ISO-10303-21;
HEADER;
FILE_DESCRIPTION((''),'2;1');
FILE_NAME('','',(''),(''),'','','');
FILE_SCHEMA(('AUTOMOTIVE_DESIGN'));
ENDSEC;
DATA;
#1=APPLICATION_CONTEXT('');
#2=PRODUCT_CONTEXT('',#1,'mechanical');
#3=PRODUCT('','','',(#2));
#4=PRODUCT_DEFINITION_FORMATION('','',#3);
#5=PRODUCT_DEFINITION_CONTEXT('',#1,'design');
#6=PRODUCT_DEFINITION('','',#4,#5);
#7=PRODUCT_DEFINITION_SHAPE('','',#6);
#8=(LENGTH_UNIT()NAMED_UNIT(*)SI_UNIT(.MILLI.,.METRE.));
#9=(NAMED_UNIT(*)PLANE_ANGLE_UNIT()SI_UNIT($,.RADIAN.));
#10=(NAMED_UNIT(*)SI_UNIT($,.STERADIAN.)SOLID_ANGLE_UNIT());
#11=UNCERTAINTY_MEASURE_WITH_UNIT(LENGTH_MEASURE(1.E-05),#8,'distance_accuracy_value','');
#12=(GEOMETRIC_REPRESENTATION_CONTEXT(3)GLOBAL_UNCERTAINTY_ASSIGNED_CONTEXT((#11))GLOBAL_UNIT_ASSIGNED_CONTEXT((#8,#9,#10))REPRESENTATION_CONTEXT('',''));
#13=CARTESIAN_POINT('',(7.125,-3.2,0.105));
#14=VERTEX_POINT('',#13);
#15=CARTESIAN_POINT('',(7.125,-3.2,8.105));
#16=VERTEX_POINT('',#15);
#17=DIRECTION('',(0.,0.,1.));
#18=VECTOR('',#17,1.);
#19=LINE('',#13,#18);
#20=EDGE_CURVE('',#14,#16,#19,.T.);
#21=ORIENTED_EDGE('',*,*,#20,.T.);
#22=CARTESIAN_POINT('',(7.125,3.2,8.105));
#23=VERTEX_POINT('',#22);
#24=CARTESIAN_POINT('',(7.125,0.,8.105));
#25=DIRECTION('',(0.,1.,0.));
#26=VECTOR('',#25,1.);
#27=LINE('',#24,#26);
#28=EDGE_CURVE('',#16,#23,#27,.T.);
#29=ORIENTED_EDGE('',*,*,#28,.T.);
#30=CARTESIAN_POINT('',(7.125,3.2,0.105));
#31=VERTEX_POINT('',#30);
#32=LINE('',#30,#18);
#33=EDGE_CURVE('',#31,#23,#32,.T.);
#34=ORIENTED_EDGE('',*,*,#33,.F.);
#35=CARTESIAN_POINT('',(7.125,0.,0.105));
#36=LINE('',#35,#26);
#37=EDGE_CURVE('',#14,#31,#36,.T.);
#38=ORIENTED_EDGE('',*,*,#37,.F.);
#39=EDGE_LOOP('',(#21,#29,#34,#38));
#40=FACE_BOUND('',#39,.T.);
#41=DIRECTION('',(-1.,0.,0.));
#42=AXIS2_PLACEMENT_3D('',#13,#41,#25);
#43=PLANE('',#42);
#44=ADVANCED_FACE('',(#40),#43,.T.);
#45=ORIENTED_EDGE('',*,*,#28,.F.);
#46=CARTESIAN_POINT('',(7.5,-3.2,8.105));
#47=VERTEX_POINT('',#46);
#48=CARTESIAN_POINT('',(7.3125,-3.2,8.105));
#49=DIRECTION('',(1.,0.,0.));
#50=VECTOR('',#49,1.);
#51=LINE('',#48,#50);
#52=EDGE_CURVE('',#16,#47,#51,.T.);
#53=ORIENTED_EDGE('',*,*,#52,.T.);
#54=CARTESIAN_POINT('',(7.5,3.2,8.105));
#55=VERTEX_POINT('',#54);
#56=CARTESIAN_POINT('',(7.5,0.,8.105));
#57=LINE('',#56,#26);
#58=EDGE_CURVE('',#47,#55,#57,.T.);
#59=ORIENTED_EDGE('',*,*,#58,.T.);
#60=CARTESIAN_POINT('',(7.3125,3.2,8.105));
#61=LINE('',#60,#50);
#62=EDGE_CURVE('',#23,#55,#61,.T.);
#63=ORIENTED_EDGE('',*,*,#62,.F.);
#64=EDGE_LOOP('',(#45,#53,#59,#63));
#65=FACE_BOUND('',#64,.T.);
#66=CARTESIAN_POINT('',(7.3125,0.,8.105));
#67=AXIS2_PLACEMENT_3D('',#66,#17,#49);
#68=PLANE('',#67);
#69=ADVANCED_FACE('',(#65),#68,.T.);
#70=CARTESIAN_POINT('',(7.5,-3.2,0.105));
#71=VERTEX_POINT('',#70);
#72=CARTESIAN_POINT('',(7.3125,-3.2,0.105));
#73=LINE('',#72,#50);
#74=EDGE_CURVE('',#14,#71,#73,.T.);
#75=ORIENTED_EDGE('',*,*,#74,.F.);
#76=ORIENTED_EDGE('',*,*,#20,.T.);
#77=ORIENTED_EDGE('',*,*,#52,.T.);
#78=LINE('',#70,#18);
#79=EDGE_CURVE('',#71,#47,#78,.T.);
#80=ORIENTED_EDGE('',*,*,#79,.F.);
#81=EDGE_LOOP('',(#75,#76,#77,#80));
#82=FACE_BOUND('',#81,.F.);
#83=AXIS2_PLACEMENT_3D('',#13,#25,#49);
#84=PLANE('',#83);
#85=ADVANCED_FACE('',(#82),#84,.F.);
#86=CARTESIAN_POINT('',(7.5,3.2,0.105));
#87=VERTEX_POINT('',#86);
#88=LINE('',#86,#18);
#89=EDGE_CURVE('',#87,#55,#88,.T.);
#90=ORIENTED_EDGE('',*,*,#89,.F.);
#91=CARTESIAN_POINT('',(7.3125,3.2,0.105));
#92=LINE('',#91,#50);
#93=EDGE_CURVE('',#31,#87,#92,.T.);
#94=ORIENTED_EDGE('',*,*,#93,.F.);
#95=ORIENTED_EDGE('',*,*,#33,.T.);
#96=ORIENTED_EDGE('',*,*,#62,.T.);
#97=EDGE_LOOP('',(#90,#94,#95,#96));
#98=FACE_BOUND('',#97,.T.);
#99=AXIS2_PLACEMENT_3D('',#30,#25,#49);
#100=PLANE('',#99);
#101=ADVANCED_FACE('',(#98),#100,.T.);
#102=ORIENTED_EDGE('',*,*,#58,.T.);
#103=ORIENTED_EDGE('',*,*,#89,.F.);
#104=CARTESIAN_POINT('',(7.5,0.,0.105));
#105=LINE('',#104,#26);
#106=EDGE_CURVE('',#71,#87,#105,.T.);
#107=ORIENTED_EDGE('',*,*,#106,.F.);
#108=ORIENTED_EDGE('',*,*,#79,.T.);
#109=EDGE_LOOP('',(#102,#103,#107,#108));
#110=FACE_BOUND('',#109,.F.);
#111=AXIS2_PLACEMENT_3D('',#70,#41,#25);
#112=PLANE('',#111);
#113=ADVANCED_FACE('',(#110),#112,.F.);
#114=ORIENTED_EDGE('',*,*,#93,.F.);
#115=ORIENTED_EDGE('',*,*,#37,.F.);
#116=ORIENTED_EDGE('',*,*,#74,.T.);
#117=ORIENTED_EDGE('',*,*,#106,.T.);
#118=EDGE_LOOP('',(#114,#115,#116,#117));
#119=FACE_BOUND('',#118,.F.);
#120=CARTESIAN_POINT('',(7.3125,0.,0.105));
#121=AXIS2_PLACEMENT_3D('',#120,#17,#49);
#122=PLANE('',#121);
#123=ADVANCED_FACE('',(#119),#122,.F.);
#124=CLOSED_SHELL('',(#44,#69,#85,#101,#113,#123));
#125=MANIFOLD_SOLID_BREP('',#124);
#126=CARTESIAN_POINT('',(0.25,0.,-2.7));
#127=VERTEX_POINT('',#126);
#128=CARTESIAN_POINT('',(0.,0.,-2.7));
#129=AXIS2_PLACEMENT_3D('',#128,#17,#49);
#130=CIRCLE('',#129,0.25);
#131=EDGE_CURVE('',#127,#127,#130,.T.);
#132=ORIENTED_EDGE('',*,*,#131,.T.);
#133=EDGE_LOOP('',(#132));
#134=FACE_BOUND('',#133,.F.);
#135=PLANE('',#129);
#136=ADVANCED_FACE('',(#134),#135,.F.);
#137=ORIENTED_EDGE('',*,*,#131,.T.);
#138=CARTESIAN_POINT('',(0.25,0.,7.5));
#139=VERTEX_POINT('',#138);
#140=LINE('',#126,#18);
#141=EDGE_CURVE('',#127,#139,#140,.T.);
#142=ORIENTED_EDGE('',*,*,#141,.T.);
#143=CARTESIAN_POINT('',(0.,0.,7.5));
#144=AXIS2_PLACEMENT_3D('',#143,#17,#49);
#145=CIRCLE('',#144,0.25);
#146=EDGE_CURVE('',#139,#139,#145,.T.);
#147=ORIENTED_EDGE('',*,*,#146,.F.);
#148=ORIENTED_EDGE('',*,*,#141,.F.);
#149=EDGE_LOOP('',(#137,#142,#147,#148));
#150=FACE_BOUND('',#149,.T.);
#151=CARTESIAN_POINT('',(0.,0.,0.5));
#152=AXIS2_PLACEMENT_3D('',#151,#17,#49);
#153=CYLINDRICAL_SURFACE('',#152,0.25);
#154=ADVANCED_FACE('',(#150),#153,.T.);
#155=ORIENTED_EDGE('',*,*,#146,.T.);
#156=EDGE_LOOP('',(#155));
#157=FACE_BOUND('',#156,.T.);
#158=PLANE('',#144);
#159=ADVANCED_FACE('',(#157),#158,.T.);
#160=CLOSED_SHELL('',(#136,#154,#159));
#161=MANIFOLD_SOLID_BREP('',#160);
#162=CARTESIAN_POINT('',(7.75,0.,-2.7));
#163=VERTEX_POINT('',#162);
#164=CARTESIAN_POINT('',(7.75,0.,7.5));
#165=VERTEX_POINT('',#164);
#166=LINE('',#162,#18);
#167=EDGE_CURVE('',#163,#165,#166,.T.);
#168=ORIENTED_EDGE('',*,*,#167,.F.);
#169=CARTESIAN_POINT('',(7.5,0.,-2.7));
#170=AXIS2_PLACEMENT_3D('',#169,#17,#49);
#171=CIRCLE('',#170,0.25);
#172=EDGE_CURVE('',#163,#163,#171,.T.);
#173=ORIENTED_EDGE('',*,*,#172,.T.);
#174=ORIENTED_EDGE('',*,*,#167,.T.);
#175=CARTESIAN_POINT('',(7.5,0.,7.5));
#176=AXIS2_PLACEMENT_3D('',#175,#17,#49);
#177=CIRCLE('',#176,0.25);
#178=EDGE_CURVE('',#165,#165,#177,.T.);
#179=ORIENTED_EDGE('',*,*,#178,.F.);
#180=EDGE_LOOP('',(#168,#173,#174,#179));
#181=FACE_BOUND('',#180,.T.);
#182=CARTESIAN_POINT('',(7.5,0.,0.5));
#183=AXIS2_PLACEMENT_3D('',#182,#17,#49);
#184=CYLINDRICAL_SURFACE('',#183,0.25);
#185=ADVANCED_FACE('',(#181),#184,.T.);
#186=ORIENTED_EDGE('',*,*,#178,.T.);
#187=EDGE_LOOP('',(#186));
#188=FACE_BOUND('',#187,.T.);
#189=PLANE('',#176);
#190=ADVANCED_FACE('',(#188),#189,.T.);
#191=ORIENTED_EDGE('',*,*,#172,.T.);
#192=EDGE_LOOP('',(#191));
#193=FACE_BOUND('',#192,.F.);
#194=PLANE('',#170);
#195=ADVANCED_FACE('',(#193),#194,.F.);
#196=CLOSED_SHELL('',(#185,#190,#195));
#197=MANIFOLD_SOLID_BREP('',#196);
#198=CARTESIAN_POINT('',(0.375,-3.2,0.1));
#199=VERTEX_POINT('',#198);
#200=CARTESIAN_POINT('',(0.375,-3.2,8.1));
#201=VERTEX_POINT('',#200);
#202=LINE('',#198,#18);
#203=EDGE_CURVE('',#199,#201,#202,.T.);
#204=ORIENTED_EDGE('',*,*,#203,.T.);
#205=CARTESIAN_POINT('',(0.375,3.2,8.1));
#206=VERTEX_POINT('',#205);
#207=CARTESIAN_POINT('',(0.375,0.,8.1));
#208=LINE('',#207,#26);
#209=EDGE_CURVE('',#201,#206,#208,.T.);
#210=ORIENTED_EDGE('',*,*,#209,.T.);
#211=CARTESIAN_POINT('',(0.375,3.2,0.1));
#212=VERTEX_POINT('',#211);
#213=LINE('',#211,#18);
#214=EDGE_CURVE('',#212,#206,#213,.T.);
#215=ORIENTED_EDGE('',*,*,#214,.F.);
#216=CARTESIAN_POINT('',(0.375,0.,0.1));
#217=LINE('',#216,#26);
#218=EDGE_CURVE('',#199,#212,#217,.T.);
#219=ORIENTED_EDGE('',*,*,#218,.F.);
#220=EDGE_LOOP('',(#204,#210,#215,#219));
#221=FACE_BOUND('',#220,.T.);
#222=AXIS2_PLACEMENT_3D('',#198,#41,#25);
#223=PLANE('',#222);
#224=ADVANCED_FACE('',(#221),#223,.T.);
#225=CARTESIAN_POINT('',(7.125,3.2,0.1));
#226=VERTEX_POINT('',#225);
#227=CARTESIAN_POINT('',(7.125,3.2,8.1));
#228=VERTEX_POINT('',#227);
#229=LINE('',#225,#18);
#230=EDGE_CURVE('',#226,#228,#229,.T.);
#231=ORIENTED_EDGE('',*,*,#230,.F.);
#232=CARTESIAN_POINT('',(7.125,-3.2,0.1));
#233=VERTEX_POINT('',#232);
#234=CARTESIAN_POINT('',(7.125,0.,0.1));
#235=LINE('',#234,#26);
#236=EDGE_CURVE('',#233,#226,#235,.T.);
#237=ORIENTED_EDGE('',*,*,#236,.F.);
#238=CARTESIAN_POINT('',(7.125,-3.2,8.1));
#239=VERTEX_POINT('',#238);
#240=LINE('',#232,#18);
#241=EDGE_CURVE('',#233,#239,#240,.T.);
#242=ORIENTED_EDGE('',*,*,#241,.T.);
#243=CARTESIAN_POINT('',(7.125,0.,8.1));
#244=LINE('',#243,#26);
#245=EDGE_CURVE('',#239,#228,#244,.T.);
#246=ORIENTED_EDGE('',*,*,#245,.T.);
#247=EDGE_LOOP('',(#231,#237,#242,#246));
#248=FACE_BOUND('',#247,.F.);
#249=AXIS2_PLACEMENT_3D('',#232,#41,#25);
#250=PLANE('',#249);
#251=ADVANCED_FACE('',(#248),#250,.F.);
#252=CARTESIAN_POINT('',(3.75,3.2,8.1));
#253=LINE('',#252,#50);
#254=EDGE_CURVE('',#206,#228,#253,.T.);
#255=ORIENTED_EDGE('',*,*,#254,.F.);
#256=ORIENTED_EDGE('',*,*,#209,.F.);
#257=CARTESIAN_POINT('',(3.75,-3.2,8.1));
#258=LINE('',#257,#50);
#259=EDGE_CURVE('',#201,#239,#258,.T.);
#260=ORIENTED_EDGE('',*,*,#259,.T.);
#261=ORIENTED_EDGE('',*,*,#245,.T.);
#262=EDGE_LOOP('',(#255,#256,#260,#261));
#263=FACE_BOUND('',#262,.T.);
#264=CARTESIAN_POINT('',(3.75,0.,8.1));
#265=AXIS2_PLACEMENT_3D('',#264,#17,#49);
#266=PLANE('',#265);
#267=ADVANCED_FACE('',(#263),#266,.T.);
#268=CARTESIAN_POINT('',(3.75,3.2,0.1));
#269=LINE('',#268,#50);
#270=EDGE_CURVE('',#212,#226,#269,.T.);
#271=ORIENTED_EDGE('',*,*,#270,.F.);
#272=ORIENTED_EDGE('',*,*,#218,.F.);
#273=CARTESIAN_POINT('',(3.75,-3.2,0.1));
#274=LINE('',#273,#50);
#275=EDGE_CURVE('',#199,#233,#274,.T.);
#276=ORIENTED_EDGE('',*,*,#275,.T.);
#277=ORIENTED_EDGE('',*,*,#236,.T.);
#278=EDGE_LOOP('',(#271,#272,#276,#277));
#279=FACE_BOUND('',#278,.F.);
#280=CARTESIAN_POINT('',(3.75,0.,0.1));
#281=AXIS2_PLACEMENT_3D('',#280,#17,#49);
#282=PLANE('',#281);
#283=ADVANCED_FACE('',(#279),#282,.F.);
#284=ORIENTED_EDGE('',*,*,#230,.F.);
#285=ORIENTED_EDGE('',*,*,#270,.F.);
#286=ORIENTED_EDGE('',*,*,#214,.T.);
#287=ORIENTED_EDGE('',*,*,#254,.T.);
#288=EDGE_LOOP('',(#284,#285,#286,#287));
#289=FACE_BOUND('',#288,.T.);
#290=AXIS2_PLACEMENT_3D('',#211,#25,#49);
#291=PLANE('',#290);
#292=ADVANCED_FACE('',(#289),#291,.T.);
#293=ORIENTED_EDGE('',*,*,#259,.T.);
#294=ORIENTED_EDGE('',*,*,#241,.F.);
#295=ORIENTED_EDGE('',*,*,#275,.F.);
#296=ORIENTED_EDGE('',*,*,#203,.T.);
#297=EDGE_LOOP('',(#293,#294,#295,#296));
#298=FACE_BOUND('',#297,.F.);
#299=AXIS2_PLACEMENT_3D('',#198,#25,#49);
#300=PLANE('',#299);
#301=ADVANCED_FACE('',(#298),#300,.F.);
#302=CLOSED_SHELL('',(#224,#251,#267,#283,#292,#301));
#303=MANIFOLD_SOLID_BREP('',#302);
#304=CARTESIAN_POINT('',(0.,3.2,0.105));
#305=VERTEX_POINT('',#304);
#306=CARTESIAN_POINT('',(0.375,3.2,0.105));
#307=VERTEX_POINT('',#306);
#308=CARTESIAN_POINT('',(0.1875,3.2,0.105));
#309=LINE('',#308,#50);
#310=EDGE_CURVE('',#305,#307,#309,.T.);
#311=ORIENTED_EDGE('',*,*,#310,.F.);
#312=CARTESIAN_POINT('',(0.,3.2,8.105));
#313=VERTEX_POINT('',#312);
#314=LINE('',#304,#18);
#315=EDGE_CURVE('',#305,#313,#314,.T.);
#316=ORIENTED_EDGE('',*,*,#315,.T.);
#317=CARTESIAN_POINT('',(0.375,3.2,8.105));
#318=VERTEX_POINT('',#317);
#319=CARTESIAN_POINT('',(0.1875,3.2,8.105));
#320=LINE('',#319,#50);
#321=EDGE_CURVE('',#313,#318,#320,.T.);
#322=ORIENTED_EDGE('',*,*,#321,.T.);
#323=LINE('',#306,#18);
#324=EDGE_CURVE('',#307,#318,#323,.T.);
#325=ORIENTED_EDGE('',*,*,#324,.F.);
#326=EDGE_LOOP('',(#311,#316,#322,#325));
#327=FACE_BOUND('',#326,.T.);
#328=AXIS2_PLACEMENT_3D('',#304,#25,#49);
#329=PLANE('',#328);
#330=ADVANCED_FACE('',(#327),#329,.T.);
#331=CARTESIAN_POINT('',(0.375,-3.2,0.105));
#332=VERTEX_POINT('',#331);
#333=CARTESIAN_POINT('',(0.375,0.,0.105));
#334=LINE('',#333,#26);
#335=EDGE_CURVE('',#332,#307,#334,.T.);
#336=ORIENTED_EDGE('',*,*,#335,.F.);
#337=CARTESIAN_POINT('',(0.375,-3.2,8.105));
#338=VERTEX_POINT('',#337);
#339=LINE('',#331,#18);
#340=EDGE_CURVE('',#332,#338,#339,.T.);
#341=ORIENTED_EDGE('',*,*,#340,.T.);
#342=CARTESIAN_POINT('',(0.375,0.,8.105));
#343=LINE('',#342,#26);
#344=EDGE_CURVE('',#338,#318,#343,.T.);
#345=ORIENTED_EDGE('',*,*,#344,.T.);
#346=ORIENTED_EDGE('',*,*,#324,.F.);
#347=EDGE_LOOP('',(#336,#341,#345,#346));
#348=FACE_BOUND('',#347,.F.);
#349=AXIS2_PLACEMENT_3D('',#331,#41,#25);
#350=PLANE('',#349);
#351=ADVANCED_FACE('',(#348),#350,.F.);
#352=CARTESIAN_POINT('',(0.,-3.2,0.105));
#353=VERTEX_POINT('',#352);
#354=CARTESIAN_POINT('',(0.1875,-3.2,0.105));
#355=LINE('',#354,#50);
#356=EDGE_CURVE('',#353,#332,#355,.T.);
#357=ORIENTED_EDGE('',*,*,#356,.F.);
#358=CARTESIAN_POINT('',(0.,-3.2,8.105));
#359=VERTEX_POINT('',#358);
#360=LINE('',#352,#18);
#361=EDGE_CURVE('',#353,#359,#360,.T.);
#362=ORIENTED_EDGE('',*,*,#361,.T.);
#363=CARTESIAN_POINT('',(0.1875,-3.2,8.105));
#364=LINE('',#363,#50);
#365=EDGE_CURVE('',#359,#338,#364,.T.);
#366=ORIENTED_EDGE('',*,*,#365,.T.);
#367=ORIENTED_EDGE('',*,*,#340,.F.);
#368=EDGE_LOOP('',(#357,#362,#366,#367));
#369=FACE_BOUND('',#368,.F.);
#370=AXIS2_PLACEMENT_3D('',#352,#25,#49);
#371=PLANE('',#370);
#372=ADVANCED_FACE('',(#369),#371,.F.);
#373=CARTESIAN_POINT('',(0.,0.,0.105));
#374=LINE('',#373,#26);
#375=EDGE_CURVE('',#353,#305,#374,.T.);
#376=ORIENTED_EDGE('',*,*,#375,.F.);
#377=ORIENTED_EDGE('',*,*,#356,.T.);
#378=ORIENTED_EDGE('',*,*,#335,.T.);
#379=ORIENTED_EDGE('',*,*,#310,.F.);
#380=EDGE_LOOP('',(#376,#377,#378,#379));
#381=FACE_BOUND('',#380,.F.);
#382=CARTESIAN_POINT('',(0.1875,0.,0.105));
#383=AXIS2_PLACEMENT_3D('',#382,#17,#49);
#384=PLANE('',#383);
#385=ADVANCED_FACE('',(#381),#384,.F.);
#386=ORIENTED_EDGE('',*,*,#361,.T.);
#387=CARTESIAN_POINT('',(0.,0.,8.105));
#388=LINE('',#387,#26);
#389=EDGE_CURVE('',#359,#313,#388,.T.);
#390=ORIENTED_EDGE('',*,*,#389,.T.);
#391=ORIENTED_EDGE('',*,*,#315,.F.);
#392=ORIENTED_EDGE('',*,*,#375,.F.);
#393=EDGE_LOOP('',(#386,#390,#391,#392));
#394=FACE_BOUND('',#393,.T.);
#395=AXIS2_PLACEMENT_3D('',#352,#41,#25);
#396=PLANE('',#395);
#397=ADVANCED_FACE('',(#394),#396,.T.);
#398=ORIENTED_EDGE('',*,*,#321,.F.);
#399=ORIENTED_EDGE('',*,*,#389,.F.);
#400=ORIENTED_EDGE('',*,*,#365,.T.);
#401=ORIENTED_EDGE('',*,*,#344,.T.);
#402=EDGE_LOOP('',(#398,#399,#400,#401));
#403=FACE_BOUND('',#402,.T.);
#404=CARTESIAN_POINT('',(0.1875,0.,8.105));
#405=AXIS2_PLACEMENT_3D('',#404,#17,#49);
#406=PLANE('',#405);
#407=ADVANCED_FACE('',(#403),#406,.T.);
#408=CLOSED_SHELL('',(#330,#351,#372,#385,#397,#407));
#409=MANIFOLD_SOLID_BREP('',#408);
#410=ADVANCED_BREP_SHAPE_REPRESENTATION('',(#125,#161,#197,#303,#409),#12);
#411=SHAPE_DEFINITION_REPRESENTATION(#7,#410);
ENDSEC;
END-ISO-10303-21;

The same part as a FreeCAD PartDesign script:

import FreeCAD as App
import Part
import Sketcher
from FreeCAD import Vector

doc = App.newDocument("Part")
body = doc.addObject("PartDesign::Body", "Body")

# Sketch on XY plane
sketch1 = body.newObject("Sketcher::SketchObject", "Sketch")
sketch1.AttachmentSupport = (doc.getObject("XY_Plane"), [""])
sketch1.MapMode = "FlatFace"
sketch1.AttachmentOffset = App.Placement(Vector(0, 0, 0.1), App.Rotation())
sketch1.addGeometry(Part.LineSegment(Vector(0, 3, 0), Vector(0, -3, 0)), False)
sketch1.addGeometry(Part.LineSegment(Vector(0, -3, 0), Vector(7, -3, 0)), False)
sketch1.addGeometry(Part.LineSegment(Vector(7, -3, 0), Vector(7, 3, 0)), False)
sketch1.addGeometry(Part.LineSegment(Vector(7, 3, 0), Vector(0, 3, 0)), False)
sketch1.addConstraint(Sketcher.Constraint("Coincident", 0, 2, 1, 1))
sketch1.addConstraint(Sketcher.Constraint("Coincident", 1, 2, 2, 1))
sketch1.addConstraint(Sketcher.Constraint("Coincident", 2, 2, 3, 1))
sketch1.addConstraint(Sketcher.Constraint("Coincident", 3, 2, 0, 1))
sketch1.addConstraint(Sketcher.Constraint("Vertical", 0))
sketch1.addConstraint(Sketcher.Constraint("Horizontal", 1))
sketch1.addConstraint(Sketcher.Constraint("Vertical", 2))
sketch1.addConstraint(Sketcher.Constraint("Horizontal", 3))
sketch1.addConstraint(Sketcher.Constraint("DistanceY", 0, 2, 0, 1, 6.4))
sketch1.addConstraint(Sketcher.Constraint("DistanceX", 1, 1, 1, 2, 6.75))
sketch1.addConstraint(Sketcher.Constraint("DistanceY", 0, 2, -1, 1, 3.2))
sketch1.addConstraint(Sketcher.Constraint("DistanceX", -1, 1, 0, 2, 0.375))
pad1 = body.newObject("PartDesign::Pad", "Pad")
pad1.Profile = sketch1
pad1.Length = 8
body2 = doc.addObject("PartDesign::Body", "Body001")
body2.AllowCompound = True

# Sketch on XY plane
sketch2 = body2.newObject("Sketcher::SketchObject", "Sketch001")
sketch2.AttachmentSupport = (doc.getObject("XY_Plane001"), [""])
sketch2.MapMode = "FlatFace"
sketch2.AttachmentOffset = App.Placement(Vector(0, 0, 0.5), App.Rotation())
sketch2.addGeometry(Part.Circle(Vector(0, 0, 0), Vector(0, 0, 1), 0.25), False)
sketch2.addGeometry(Part.Circle(Vector(7.5, 0, 0), Vector(0, 0, 1), 0.25), False)
sketch2.addConstraint(Sketcher.Constraint("Coincident", 0, 3, -1, 1))
sketch2.addConstraint(Sketcher.Constraint("Equal", 0, 1))
sketch2.addConstraint(Sketcher.Constraint("PointOnObject", 1, 3, -1))
sketch2.addConstraint(Sketcher.Constraint("Diameter", 0, 0.5))
sketch2.addConstraint(Sketcher.Constraint("DistanceX", -1, 1, 1, 3, 7.5))
pad2 = body2.newObject("PartDesign::Pad", "Pad001")
pad2.Profile = sketch2
pad2.Type = "TwoLengths"
pad2.Length = 7
pad2.Length2 = 3.2
body3 = doc.addObject("PartDesign::Body", "Body002")
body3.AllowCompound = True

# Sketch on XY plane
sketch3 = body3.newObject("Sketcher::SketchObject", "Sketch002")
sketch3.AttachmentSupport = (doc.getObject("XY_Plane002"), [""])
sketch3.MapMode = "FlatFace"
sketch3.AttachmentOffset = App.Placement(Vector(0, 0, 0.105), App.Rotation())
sketch3.addGeometry(Part.LineSegment(Vector(0, 3.2, 0), Vector(0, -3.2, 0)), False)
sketch3.addGeometry(Part.LineSegment(Vector(0, -3.2, 0), Vector(0.38, -3.2, 0)), False)
sketch3.addGeometry(Part.LineSegment(Vector(0.38, -3.2, 0), Vector(0.38, 3.2, 0)), False)
sketch3.addGeometry(Part.LineSegment(Vector(0.38, 3.2, 0), Vector(0, 3.2, 0)), False)
sketch3.addGeometry(Part.LineSegment(Vector(7.12, 3.2, 0), Vector(7.12, -3.2, 0)), False)
sketch3.addGeometry(Part.LineSegment(Vector(7.12, -3.2, 0), Vector(7.5, -3.2, 0)), False)
sketch3.addGeometry(Part.LineSegment(Vector(7.5, -3.2, 0), Vector(7.5, 3.2, 0)), False)
sketch3.addGeometry(Part.LineSegment(Vector(7.5, 3.2, 0), Vector(7.12, 3.2, 0)), False)
sketch3.addConstraint(Sketcher.Constraint("Coincident", 0, 2, 1, 1))
sketch3.addConstraint(Sketcher.Constraint("Coincident", 1, 2, 2, 1))
sketch3.addConstraint(Sketcher.Constraint("Coincident", 2, 2, 3, 1))
sketch3.addConstraint(Sketcher.Constraint("Coincident", 3, 2, 0, 1))
sketch3.addConstraint(Sketcher.Constraint("Coincident", 4, 2, 5, 1))
sketch3.addConstraint(Sketcher.Constraint("Coincident", 5, 2, 6, 1))
sketch3.addConstraint(Sketcher.Constraint("Coincident", 6, 2, 7, 1))
sketch3.addConstraint(Sketcher.Constraint("Coincident", 7, 2, 4, 1))
sketch3.addConstraint(Sketcher.Constraint("Vertical", 0))
sketch3.addConstraint(Sketcher.Constraint("Horizontal", 1))
sketch3.addConstraint(Sketcher.Constraint("Vertical", 2))
sketch3.addConstraint(Sketcher.Constraint("Horizontal", 3))
sketch3.addConstraint(Sketcher.Constraint("Vertical", 4))
sketch3.addConstraint(Sketcher.Constraint("Horizontal", 5))
sketch3.addConstraint(Sketcher.Constraint("Vertical", 6))
sketch3.addConstraint(Sketcher.Constraint("Horizontal", 7))
sketch3.addConstraint(Sketcher.Constraint("Symmetric", 0, 2, 3, 2, -1, 1))
sketch3.addConstraint(Sketcher.Constraint("Horizontal", 1, 2, 4, 2))
sketch3.addConstraint(Sketcher.Constraint("Horizontal", 3, 2, 6, 2))
sketch3.addConstraint(Sketcher.Constraint("Equal", 3, 5))
sketch3.addConstraint(Sketcher.Constraint("DistanceY", 0, 2, 0, 1, 6.4))
sketch3.addConstraint(Sketcher.Constraint("DistanceX", -1, 1, 5, 2, 7.5))
sketch3.addConstraint(Sketcher.Constraint("DistanceX", 1, 1, 1, 2, 0.375))
pad3 = body3.newObject("PartDesign::Pad", "Pad002")
pad3.Profile = sketch3
pad3.Length = 8

doc.recompute()
